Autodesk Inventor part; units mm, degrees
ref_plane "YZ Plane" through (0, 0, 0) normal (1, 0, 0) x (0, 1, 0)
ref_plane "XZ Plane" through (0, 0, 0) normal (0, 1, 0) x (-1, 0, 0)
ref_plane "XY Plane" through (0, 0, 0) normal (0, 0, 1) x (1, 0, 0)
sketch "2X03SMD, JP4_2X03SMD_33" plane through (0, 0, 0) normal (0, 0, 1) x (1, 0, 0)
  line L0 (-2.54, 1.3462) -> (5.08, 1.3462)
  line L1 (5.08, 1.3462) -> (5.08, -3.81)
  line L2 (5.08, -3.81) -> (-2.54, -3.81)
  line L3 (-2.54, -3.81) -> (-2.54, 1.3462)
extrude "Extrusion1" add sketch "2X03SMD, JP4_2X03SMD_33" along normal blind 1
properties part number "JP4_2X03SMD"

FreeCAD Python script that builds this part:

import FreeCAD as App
import Part
import Sketcher
from FreeCAD import Vector
Q = App.Units.Quantity


def add_polygon(sketch, points):
    """Adds a closed chain of lines whose ends are joined by coincident constraints."""
    first, n = sketch.GeometryCount, len(points)
    for a, b in zip(points, points[1:] + points[:1]):
        sketch.addGeometry(Part.LineSegment(App.Vector(*a, 0), App.Vector(*b, 0)), False)
    for i in range(n):
        sketch.addConstraint(Sketcher.Constraint("Coincident", first + i, 2, first + (i + 1) % n, 1))

doc = App.newDocument("Part")
body = doc.addObject("PartDesign::Body", "Body")

sketch1 = doc.addObject("Sketcher::SketchObject", "Sketch")
body.addObject(sketch1)
sketch1.AttachmentSupport = (doc.XY_Plane, [""])
sketch1.MapMode = "FlatFace"
add_polygon(sketch1, [(5.08, 1.3462), (-2.54, 1.3462), (-2.54, -3.81), (5.08, -3.81)])
sketch1.addConstraint(Sketcher.Constraint("Horizontal", 0))
sketch1.addConstraint(Sketcher.Constraint("Vertical", 1))
sketch1.addConstraint(Sketcher.Constraint("Horizontal", 2))
sketch1.addConstraint(Sketcher.Constraint("Vertical", 3))
sketch1.addConstraint(Sketcher.Constraint("DistanceX", 0, 2, 0, 1, Q("0.3 in")))
sketch1.addConstraint(Sketcher.Constraint("DistanceX", 0, 2, -1, 1, Q("0.1 in")))
sketch1.addConstraint(Sketcher.Constraint("DistanceY", 1, 2, 1, 1, Q("0.203 in")))
sketch1.addConstraint(Sketcher.Constraint("DistanceY", 1, 2, -1, 1, Q("0.15 in")))
pad1 = doc.addObject("PartDesign::Pad", "Pad")
body.addObject(pad1)
pad1.Profile = sketch1
pad1.Length = 1

doc.recompute()
